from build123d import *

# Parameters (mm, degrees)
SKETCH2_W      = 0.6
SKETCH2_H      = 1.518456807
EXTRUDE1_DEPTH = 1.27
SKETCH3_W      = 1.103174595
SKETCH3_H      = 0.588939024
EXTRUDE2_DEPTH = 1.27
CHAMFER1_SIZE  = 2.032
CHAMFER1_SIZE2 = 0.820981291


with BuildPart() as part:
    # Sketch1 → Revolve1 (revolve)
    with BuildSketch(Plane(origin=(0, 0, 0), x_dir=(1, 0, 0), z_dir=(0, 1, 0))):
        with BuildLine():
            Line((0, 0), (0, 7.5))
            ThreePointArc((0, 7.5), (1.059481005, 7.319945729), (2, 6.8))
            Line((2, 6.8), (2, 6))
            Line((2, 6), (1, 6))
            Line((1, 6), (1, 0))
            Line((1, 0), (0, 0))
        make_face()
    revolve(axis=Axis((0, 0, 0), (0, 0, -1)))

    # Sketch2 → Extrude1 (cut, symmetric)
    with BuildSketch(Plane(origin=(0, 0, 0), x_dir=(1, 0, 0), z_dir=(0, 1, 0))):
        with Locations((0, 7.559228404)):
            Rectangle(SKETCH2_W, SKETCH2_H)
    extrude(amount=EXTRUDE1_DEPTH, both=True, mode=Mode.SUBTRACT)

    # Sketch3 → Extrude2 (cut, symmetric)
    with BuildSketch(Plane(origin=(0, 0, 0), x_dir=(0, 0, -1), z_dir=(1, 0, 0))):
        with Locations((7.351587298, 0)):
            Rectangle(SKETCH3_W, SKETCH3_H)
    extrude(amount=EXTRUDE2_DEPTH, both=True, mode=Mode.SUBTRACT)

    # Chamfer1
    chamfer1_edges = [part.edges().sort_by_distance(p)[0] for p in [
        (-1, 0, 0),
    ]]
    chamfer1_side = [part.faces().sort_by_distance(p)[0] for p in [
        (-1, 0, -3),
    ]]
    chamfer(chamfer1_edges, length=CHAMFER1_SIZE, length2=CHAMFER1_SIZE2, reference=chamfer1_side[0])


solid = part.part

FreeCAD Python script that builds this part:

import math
import FreeCAD as App
import Part
import Sketcher


def edges_at(feature, points):
    """Names of the edges that pass closest to the given points."""
    edges = feature.Shape.Edges
    near = lambda p: min(range(len(edges)), key=lambda i: edges[i].distToShape(Part.Vertex(*p))[0])
    return sorted({f"Edge{near(p) + 1}" for p in points})


def add_polygon(sketch, points):
    """Adds a closed chain of lines whose ends are joined by coincident constraints."""
    first, n = sketch.GeometryCount, len(points)
    for a, b in zip(points, points[1:] + points[:1]):
        sketch.addGeometry(Part.LineSegment(App.Vector(*a, 0), App.Vector(*b, 0)), False)
    for i in range(n):
        sketch.addConstraint(Sketcher.Constraint("Coincident", first + i, 2, first + (i + 1) % n, 1))

doc = App.newDocument("Part")
body = doc.addObject("PartDesign::Body", "Body")

# Sketch on XZ plane
sketch1 = body.newObject("Sketcher::SketchObject", "Sketch")
sketch1.AttachmentSupport = (doc.getObject("XZ_Plane"), [""])
sketch1.MapMode = "FlatFace"
sketch1.addGeometry([
    Part.LineSegment(App.Vector(0, -7.5, 0), App.Vector(0, 0, 0)),  # 0
    Part.LineSegment(App.Vector(0, 0, 0), App.Vector(1, 0, 0)),  # 1
    Part.LineSegment(App.Vector(1, 0, 0), App.Vector(1, -6, 0)),  # 2
    Part.LineSegment(App.Vector(1, -6, 0), App.Vector(2, -6, 0)),  # 3
    Part.LineSegment(App.Vector(2, -6, 0), App.Vector(2, -6.8, 0)),  # 4
    Part.ArcOfCircle(Part.Circle(App.Vector(0, -4.3, 0), App.Vector(0, 0, 1), 3.2), math.radians(-90), math.radians(-51)),  # 5
], False)
sketch1.addConstraint([
    Sketcher.Constraint("Coincident", 0, 2, 1, 1),
    Sketcher.Constraint("Coincident", 1, 2, 2, 1),
    Sketcher.Constraint("Coincident", 2, 2, 3, 1),
    Sketcher.Constraint("Coincident", 3, 2, 4, 1),
    Sketcher.Constraint("Coincident", 4, 2, 5, 2),
    Sketcher.Constraint("Coincident", 5, 1, 0, 1),
    Sketcher.Constraint("Vertical", 0),
    Sketcher.Constraint("Horizontal", 1),
    Sketcher.Constraint("Vertical", 2),
    Sketcher.Constraint("Horizontal", 3),
    Sketcher.Constraint("Vertical", 4),
    Sketcher.Constraint("Coincident", 0, 2, -1, 1),
    Sketcher.Constraint("PointOnObject", 5, 3, -2),
    Sketcher.Constraint("Equal", 1, 3),
    Sketcher.Constraint("DistanceX", 1, 1, 1, 2, 1.0),
    Sketcher.Constraint("DistanceY", 2, 2, 2, 1, 6.0),
    Sketcher.Constraint("DistanceY", 0, 1, 0, 2, 7.5),
    Sketcher.Constraint("DistanceY", 4, 2, 4, 1, 0.8),
])
revolution = body.newObject("PartDesign::Revolution", "Revolution")
revolution.Profile = sketch1
revolution.ReferenceAxis = (sketch1, ["V_Axis"])
revolution.Angle = 360

# Sketch on XZ plane
sketch2 = body.newObject("Sketcher::SketchObject", "Sketch001")
sketch2.AttachmentSupport = (doc.getObject("XZ_Plane"), [""])
sketch2.MapMode = "FlatFace"
add_polygon(sketch2, [(-0.3, -8.3), (-0.3, -6.8), (0.3, -6.8), (0.3, -8.3)])  # lines 0-3
sketch2.addConstraint([
    Sketcher.Constraint("Vertical", 0),
    Sketcher.Constraint("Horizontal", 1),
    Sketcher.Constraint("Vertical", 2),
    Sketcher.Constraint("Horizontal", 3),
    Sketcher.Constraint("DistanceX", 1, 1, 1, 2, 0.6),
    Sketcher.Constraint("DistanceX", 0, 2, -1, 1, 0.3),
    Sketcher.Constraint("DistanceY", 0, 2, -1, 1, 6.8),
    Sketcher.Constraint("DistanceY", 0, 1, 0, 2, 1.518457),
])
pocket1 = body.newObject("PartDesign::Pocket", "Pocket")
pocket1.Profile = sketch2
pocket1.Length = 2.54
pocket1.Midplane = True

# Sketch on YZ plane
sketch3 = body.newObject("Sketcher::SketchObject", "Sketch002")
sketch3.AttachmentSupport = (doc.getObject("YZ_Plane"), [""])
sketch3.MapMode = "FlatFace"
add_polygon(sketch3, [(0.3, -6.8), (-0.3, -6.8), (-0.3, -7.9), (0.3, -7.9)])  # lines 0-3
sketch3.addConstraint([
    Sketcher.Constraint("Horizontal", 0),
    Sketcher.Constraint("Vertical", 1),
    Sketcher.Constraint("Horizontal", 2),
    Sketcher.Constraint("Vertical", 3),
    Sketcher.Constraint("DistanceY", 0, 2, -1, 1, 6.8),
    Sketcher.Constraint("DistanceX", 0, 2, 0, 1, 0.588939),
    Sketcher.Constraint("DistanceY", 1, 2, 1, 1, 1.103175),
    Sketcher.Constraint("DistanceX", 0, 2, -1, 1, 0.29447),
])
pocket2 = body.newObject("PartDesign::Pocket", "Pocket001")
pocket2.Profile = sketch3
pocket2.Length = 2.54
pocket2.Midplane = True
doc.recompute()

chamfer = body.newObject("PartDesign::Chamfer", "Chamfer")
chamfer.Base = (pocket2, edges_at(pocket2, [(-1, 0, 0)]))
chamfer.ChamferType = "Two distances"
chamfer.Size = 2.032
chamfer.Size2 = 0.820981
chamfer.FlipDirection = True

doc.recompute()
